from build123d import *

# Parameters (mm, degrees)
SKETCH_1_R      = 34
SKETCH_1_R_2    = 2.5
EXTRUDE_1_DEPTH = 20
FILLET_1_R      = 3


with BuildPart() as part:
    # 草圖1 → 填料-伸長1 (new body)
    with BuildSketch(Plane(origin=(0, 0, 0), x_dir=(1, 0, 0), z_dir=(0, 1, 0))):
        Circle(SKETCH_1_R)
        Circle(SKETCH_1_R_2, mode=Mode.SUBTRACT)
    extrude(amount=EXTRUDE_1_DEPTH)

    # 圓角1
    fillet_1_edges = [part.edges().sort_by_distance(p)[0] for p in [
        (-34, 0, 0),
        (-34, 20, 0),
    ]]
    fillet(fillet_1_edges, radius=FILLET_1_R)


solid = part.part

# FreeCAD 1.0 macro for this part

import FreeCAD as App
import Part
import Sketcher
Q = App.Units.Quantity


def edges_at(feature, points):
    """Names of the edges that pass closest to the given points."""
    edges = feature.Shape.Edges
    near = lambda p: min(range(len(edges)), key=lambda i: edges[i].distToShape(Part.Vertex(*p))[0])
    return sorted({f"Edge{near(p) + 1}" for p in points})

doc = App.newDocument("Part")
body = doc.addObject("PartDesign::Body", "Body")

# Sketch on XZ plane
sketch1 = body.newObject("Sketcher::SketchObject", "Sketch")
sketch1.AttachmentSupport = (doc.getObject("XZ_Plane"), [""])
sketch1.MapMode = "FlatFace"
sketch1.addGeometry(Part.Circle(App.Vector(0, 0, 0), App.Vector(0, 0, 1), 34), False)
sketch1.addGeometry(Part.Circle(App.Vector(0, 0, 0), App.Vector(0, 0, 1), 2.5), False)
sketch1.addConstraint(Sketcher.Constraint("Coincident", 0, 3, -1, 1))
sketch1.addConstraint(Sketcher.Constraint("Coincident", 1, 3, -1, 1))
sketch1.addConstraint(Sketcher.Constraint("Diameter", 0, Q("68 mm")))
sketch1.addConstraint(Sketcher.Constraint("Diameter", 1, Q("5 mm")))
pad1 = body.newObject("PartDesign::Pad", "Pad")
pad1.Profile = sketch1
pad1.Length = 20
pad1.Reversed = True
doc.recompute()

fillet = body.newObject("PartDesign::Fillet", "Fillet")
fillet.Base = (pad1, edges_at(pad1, [(-34, 0, 0), (-34, 20, 0)]))
fillet.Radius = 3

doc.recompute()
